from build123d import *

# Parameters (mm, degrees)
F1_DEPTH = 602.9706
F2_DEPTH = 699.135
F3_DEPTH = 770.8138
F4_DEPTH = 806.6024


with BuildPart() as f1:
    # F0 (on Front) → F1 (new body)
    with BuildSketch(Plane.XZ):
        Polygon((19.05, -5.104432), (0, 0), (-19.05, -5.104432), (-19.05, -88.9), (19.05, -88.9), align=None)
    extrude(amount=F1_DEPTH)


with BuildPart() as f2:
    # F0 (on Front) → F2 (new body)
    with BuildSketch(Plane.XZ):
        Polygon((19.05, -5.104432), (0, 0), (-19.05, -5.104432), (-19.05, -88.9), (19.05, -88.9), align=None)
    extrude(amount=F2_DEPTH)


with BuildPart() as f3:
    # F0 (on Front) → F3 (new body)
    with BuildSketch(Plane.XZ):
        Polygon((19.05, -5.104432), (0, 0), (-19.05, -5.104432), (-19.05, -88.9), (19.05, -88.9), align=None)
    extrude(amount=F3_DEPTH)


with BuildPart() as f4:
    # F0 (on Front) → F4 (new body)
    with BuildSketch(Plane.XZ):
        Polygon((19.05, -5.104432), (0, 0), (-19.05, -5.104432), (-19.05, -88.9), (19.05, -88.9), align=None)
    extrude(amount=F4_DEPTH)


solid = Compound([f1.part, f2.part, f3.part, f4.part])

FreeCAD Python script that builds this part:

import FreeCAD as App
import Part
import Sketcher
from FreeCAD import Vector
Q = App.Units.Quantity

doc = App.newDocument("Part")
body = doc.addObject("PartDesign::Body", "Body")

# Sketch on XZ plane
sketch1 = body.newObject("Sketcher::SketchObject", "Sketch")
sketch1.AttachmentSupport = (doc.getObject("XZ_Plane"), [""])
sketch1.MapMode = "FlatFace"
sketch1.addGeometry([
    Part.LineSegment(Vector(19, -5, 0), Vector(0, 0, 0)),  # 0
    Part.LineSegment(Vector(0, 0, 0), Vector(-19, -5, 0)),  # 1
    Part.LineSegment(Vector(-19, -5, 0), Vector(-19, -89, 0)),  # 2
    Part.LineSegment(Vector(-19, -89, 0), Vector(19, -89, 0)),  # 3
    Part.LineSegment(Vector(19, -89, 0), Vector(19, -5, 0)),  # 4
], False)
sketch1.addConstraint([
    Sketcher.Constraint("Coincident", 0, 2, 1, 1),
    Sketcher.Constraint("Coincident", 1, 2, 2, 1),
    Sketcher.Constraint("Coincident", 2, 2, 3, 1),
    Sketcher.Constraint("Coincident", 3, 2, 4, 1),
    Sketcher.Constraint("Coincident", 4, 2, 0, 1),
    Sketcher.Constraint("Vertical", 2),
    Sketcher.Constraint("Horizontal", 3),
    Sketcher.Constraint("Vertical", 4),
    Sketcher.Constraint("Coincident", 0, 2, -1, 1),
    Sketcher.Constraint("Symmetric", 1, 2, 4, 2, -2),
    Sketcher.Constraint("DistanceX", 3, 1, 3, 2, Q("1.5 in")),
    Sketcher.Constraint("Angle", 0, Q("165 deg")),
    Sketcher.Constraint("DistanceY", 2, 2, -1, 1, Q("3.5 in")),
])
pad1 = body.newObject("PartDesign::Pad", "Pad")
pad1.Profile = sketch1
pad1.Length = Q("23.739 in")
body2 = doc.addObject("PartDesign::Body", "Body001")

# Sketch on XZ plane
sketch2 = body2.newObject("Sketcher::SketchObject", "Sketch001")
sketch2.AttachmentSupport = (doc.getObject("XZ_Plane001"), [""])
sketch2.MapMode = "FlatFace"
sketch2.addGeometry([
    Part.LineSegment(Vector(19, -5, 0), Vector(0, 0, 0)),  # 0
    Part.LineSegment(Vector(0, 0, 0), Vector(-19, -5, 0)),  # 1
    Part.LineSegment(Vector(-19, -5, 0), Vector(-19, -89, 0)),  # 2
    Part.LineSegment(Vector(-19, -89, 0), Vector(19, -89, 0)),  # 3
    Part.LineSegment(Vector(19, -89, 0), Vector(19, -5, 0)),  # 4
], False)
sketch2.addConstraint([
    Sketcher.Constraint("Coincident", 0, 2, 1, 1),
    Sketcher.Constraint("Coincident", 1, 2, 2, 1),
    Sketcher.Constraint("Coincident", 2, 2, 3, 1),
    Sketcher.Constraint("Coincident", 3, 2, 4, 1),
    Sketcher.Constraint("Coincident", 4, 2, 0, 1),
    Sketcher.Constraint("Vertical", 2),
    Sketcher.Constraint("Horizontal", 3),
    Sketcher.Constraint("Vertical", 4),
    Sketcher.Constraint("Coincident", 0, 2, -1, 1),
    Sketcher.Constraint("Symmetric", 1, 2, 4, 2, -2),
    Sketcher.Constraint("DistanceX", 3, 1, 3, 2, Q("1.5 in")),
    Sketcher.Constraint("Angle", 0, Q("165 deg")),
    Sketcher.Constraint("DistanceY", 2, 2, -1, 1, Q("3.5 in")),
])
pad2 = body2.newObject("PartDesign::Pad", "Pad001")
pad2.Profile = sketch2
pad2.Length = Q("27.525 in")
body3 = doc.addObject("PartDesign::Body", "Body002")

# Sketch on XZ plane
sketch3 = body3.newObject("Sketcher::SketchObject", "Sketch002")
sketch3.AttachmentSupport = (doc.getObject("XZ_Plane002"), [""])
sketch3.MapMode = "FlatFace"
sketch3.addGeometry([
    Part.LineSegment(Vector(19, -5, 0), Vector(0, 0, 0)),  # 0
    Part.LineSegment(Vector(0, 0, 0), Vector(-19, -5, 0)),  # 1
    Part.LineSegment(Vector(-19, -5, 0), Vector(-19, -89, 0)),  # 2
    Part.LineSegment(Vector(-19, -89, 0), Vector(19, -89, 0)),  # 3
    Part.LineSegment(Vector(19, -89, 0), Vector(19, -5, 0)),  # 4
], False)
sketch3.addConstraint([
    Sketcher.Constraint("Coincident", 0, 2, 1, 1),
    Sketcher.Constraint("Coincident", 1, 2, 2, 1),
    Sketcher.Constraint("Coincident", 2, 2, 3, 1),
    Sketcher.Constraint("Coincident", 3, 2, 4, 1),
    Sketcher.Constraint("Coincident", 4, 2, 0, 1),
    Sketcher.Constraint("Vertical", 2),
    Sketcher.Constraint("Horizontal", 3),
    Sketcher.Constraint("Vertical", 4),
    Sketcher.Constraint("Coincident", 0, 2, -1, 1),
    Sketcher.Constraint("Symmetric", 1, 2, 4, 2, -2),
    Sketcher.Constraint("DistanceX", 3, 1, 3, 2, Q("1.5 in")),
    Sketcher.Constraint("Angle", 0, Q("165 deg")),
    Sketcher.Constraint("DistanceY", 2, 2, -1, 1, Q("3.5 in")),
])
pad3 = body3.newObject("PartDesign::Pad", "Pad002")
pad3.Profile = sketch3
pad3.Length = Q("30.347 in")
body4 = doc.addObject("PartDesign::Body", "Body003")

# Sketch on XZ plane
sketch4 = body4.newObject("Sketcher::SketchObject", "Sketch003")
sketch4.AttachmentSupport = (doc.getObject("XZ_Plane003"), [""])
sketch4.MapMode = "FlatFace"
sketch4.addGeometry([
    Part.LineSegment(Vector(19, -5, 0), Vector(0, 0, 0)),  # 0
    Part.LineSegment(Vector(0, 0, 0), Vector(-19, -5, 0)),  # 1
    Part.LineSegment(Vector(-19, -5, 0), Vector(-19, -89, 0)),  # 2
    Part.LineSegment(Vector(-19, -89, 0), Vector(19, -89, 0)),  # 3
    Part.LineSegment(Vector(19, -89, 0), Vector(19, -5, 0)),  # 4
], False)
sketch4.addConstraint([
    Sketcher.Constraint("Coincident", 0, 2, 1, 1),
    Sketcher.Constraint("Coincident", 1, 2, 2, 1),
    Sketcher.Constraint("Coincident", 2, 2, 3, 1),
    Sketcher.Constraint("Coincident", 3, 2, 4, 1),
    Sketcher.Constraint("Coincident", 4, 2, 0, 1),
    Sketcher.Constraint("Vertical", 2),
    Sketcher.Constraint("Horizontal", 3),
    Sketcher.Constraint("Vertical", 4),
    Sketcher.Constraint("Coincident", 0, 2, -1, 1),
    Sketcher.Constraint("Symmetric", 1, 2, 4, 2, -2),
    Sketcher.Constraint("DistanceX", 3, 1, 3, 2, Q("1.5 in")),
    Sketcher.Constraint("Angle", 0, Q("165 deg")),
    Sketcher.Constraint("DistanceY", 2, 2, -1, 1, Q("3.5 in")),
])
pad4 = body4.newObject("PartDesign::Pad", "Pad003")
pad4.Profile = sketch4
pad4.Length = Q("31.756 in")

doc.recompute()
